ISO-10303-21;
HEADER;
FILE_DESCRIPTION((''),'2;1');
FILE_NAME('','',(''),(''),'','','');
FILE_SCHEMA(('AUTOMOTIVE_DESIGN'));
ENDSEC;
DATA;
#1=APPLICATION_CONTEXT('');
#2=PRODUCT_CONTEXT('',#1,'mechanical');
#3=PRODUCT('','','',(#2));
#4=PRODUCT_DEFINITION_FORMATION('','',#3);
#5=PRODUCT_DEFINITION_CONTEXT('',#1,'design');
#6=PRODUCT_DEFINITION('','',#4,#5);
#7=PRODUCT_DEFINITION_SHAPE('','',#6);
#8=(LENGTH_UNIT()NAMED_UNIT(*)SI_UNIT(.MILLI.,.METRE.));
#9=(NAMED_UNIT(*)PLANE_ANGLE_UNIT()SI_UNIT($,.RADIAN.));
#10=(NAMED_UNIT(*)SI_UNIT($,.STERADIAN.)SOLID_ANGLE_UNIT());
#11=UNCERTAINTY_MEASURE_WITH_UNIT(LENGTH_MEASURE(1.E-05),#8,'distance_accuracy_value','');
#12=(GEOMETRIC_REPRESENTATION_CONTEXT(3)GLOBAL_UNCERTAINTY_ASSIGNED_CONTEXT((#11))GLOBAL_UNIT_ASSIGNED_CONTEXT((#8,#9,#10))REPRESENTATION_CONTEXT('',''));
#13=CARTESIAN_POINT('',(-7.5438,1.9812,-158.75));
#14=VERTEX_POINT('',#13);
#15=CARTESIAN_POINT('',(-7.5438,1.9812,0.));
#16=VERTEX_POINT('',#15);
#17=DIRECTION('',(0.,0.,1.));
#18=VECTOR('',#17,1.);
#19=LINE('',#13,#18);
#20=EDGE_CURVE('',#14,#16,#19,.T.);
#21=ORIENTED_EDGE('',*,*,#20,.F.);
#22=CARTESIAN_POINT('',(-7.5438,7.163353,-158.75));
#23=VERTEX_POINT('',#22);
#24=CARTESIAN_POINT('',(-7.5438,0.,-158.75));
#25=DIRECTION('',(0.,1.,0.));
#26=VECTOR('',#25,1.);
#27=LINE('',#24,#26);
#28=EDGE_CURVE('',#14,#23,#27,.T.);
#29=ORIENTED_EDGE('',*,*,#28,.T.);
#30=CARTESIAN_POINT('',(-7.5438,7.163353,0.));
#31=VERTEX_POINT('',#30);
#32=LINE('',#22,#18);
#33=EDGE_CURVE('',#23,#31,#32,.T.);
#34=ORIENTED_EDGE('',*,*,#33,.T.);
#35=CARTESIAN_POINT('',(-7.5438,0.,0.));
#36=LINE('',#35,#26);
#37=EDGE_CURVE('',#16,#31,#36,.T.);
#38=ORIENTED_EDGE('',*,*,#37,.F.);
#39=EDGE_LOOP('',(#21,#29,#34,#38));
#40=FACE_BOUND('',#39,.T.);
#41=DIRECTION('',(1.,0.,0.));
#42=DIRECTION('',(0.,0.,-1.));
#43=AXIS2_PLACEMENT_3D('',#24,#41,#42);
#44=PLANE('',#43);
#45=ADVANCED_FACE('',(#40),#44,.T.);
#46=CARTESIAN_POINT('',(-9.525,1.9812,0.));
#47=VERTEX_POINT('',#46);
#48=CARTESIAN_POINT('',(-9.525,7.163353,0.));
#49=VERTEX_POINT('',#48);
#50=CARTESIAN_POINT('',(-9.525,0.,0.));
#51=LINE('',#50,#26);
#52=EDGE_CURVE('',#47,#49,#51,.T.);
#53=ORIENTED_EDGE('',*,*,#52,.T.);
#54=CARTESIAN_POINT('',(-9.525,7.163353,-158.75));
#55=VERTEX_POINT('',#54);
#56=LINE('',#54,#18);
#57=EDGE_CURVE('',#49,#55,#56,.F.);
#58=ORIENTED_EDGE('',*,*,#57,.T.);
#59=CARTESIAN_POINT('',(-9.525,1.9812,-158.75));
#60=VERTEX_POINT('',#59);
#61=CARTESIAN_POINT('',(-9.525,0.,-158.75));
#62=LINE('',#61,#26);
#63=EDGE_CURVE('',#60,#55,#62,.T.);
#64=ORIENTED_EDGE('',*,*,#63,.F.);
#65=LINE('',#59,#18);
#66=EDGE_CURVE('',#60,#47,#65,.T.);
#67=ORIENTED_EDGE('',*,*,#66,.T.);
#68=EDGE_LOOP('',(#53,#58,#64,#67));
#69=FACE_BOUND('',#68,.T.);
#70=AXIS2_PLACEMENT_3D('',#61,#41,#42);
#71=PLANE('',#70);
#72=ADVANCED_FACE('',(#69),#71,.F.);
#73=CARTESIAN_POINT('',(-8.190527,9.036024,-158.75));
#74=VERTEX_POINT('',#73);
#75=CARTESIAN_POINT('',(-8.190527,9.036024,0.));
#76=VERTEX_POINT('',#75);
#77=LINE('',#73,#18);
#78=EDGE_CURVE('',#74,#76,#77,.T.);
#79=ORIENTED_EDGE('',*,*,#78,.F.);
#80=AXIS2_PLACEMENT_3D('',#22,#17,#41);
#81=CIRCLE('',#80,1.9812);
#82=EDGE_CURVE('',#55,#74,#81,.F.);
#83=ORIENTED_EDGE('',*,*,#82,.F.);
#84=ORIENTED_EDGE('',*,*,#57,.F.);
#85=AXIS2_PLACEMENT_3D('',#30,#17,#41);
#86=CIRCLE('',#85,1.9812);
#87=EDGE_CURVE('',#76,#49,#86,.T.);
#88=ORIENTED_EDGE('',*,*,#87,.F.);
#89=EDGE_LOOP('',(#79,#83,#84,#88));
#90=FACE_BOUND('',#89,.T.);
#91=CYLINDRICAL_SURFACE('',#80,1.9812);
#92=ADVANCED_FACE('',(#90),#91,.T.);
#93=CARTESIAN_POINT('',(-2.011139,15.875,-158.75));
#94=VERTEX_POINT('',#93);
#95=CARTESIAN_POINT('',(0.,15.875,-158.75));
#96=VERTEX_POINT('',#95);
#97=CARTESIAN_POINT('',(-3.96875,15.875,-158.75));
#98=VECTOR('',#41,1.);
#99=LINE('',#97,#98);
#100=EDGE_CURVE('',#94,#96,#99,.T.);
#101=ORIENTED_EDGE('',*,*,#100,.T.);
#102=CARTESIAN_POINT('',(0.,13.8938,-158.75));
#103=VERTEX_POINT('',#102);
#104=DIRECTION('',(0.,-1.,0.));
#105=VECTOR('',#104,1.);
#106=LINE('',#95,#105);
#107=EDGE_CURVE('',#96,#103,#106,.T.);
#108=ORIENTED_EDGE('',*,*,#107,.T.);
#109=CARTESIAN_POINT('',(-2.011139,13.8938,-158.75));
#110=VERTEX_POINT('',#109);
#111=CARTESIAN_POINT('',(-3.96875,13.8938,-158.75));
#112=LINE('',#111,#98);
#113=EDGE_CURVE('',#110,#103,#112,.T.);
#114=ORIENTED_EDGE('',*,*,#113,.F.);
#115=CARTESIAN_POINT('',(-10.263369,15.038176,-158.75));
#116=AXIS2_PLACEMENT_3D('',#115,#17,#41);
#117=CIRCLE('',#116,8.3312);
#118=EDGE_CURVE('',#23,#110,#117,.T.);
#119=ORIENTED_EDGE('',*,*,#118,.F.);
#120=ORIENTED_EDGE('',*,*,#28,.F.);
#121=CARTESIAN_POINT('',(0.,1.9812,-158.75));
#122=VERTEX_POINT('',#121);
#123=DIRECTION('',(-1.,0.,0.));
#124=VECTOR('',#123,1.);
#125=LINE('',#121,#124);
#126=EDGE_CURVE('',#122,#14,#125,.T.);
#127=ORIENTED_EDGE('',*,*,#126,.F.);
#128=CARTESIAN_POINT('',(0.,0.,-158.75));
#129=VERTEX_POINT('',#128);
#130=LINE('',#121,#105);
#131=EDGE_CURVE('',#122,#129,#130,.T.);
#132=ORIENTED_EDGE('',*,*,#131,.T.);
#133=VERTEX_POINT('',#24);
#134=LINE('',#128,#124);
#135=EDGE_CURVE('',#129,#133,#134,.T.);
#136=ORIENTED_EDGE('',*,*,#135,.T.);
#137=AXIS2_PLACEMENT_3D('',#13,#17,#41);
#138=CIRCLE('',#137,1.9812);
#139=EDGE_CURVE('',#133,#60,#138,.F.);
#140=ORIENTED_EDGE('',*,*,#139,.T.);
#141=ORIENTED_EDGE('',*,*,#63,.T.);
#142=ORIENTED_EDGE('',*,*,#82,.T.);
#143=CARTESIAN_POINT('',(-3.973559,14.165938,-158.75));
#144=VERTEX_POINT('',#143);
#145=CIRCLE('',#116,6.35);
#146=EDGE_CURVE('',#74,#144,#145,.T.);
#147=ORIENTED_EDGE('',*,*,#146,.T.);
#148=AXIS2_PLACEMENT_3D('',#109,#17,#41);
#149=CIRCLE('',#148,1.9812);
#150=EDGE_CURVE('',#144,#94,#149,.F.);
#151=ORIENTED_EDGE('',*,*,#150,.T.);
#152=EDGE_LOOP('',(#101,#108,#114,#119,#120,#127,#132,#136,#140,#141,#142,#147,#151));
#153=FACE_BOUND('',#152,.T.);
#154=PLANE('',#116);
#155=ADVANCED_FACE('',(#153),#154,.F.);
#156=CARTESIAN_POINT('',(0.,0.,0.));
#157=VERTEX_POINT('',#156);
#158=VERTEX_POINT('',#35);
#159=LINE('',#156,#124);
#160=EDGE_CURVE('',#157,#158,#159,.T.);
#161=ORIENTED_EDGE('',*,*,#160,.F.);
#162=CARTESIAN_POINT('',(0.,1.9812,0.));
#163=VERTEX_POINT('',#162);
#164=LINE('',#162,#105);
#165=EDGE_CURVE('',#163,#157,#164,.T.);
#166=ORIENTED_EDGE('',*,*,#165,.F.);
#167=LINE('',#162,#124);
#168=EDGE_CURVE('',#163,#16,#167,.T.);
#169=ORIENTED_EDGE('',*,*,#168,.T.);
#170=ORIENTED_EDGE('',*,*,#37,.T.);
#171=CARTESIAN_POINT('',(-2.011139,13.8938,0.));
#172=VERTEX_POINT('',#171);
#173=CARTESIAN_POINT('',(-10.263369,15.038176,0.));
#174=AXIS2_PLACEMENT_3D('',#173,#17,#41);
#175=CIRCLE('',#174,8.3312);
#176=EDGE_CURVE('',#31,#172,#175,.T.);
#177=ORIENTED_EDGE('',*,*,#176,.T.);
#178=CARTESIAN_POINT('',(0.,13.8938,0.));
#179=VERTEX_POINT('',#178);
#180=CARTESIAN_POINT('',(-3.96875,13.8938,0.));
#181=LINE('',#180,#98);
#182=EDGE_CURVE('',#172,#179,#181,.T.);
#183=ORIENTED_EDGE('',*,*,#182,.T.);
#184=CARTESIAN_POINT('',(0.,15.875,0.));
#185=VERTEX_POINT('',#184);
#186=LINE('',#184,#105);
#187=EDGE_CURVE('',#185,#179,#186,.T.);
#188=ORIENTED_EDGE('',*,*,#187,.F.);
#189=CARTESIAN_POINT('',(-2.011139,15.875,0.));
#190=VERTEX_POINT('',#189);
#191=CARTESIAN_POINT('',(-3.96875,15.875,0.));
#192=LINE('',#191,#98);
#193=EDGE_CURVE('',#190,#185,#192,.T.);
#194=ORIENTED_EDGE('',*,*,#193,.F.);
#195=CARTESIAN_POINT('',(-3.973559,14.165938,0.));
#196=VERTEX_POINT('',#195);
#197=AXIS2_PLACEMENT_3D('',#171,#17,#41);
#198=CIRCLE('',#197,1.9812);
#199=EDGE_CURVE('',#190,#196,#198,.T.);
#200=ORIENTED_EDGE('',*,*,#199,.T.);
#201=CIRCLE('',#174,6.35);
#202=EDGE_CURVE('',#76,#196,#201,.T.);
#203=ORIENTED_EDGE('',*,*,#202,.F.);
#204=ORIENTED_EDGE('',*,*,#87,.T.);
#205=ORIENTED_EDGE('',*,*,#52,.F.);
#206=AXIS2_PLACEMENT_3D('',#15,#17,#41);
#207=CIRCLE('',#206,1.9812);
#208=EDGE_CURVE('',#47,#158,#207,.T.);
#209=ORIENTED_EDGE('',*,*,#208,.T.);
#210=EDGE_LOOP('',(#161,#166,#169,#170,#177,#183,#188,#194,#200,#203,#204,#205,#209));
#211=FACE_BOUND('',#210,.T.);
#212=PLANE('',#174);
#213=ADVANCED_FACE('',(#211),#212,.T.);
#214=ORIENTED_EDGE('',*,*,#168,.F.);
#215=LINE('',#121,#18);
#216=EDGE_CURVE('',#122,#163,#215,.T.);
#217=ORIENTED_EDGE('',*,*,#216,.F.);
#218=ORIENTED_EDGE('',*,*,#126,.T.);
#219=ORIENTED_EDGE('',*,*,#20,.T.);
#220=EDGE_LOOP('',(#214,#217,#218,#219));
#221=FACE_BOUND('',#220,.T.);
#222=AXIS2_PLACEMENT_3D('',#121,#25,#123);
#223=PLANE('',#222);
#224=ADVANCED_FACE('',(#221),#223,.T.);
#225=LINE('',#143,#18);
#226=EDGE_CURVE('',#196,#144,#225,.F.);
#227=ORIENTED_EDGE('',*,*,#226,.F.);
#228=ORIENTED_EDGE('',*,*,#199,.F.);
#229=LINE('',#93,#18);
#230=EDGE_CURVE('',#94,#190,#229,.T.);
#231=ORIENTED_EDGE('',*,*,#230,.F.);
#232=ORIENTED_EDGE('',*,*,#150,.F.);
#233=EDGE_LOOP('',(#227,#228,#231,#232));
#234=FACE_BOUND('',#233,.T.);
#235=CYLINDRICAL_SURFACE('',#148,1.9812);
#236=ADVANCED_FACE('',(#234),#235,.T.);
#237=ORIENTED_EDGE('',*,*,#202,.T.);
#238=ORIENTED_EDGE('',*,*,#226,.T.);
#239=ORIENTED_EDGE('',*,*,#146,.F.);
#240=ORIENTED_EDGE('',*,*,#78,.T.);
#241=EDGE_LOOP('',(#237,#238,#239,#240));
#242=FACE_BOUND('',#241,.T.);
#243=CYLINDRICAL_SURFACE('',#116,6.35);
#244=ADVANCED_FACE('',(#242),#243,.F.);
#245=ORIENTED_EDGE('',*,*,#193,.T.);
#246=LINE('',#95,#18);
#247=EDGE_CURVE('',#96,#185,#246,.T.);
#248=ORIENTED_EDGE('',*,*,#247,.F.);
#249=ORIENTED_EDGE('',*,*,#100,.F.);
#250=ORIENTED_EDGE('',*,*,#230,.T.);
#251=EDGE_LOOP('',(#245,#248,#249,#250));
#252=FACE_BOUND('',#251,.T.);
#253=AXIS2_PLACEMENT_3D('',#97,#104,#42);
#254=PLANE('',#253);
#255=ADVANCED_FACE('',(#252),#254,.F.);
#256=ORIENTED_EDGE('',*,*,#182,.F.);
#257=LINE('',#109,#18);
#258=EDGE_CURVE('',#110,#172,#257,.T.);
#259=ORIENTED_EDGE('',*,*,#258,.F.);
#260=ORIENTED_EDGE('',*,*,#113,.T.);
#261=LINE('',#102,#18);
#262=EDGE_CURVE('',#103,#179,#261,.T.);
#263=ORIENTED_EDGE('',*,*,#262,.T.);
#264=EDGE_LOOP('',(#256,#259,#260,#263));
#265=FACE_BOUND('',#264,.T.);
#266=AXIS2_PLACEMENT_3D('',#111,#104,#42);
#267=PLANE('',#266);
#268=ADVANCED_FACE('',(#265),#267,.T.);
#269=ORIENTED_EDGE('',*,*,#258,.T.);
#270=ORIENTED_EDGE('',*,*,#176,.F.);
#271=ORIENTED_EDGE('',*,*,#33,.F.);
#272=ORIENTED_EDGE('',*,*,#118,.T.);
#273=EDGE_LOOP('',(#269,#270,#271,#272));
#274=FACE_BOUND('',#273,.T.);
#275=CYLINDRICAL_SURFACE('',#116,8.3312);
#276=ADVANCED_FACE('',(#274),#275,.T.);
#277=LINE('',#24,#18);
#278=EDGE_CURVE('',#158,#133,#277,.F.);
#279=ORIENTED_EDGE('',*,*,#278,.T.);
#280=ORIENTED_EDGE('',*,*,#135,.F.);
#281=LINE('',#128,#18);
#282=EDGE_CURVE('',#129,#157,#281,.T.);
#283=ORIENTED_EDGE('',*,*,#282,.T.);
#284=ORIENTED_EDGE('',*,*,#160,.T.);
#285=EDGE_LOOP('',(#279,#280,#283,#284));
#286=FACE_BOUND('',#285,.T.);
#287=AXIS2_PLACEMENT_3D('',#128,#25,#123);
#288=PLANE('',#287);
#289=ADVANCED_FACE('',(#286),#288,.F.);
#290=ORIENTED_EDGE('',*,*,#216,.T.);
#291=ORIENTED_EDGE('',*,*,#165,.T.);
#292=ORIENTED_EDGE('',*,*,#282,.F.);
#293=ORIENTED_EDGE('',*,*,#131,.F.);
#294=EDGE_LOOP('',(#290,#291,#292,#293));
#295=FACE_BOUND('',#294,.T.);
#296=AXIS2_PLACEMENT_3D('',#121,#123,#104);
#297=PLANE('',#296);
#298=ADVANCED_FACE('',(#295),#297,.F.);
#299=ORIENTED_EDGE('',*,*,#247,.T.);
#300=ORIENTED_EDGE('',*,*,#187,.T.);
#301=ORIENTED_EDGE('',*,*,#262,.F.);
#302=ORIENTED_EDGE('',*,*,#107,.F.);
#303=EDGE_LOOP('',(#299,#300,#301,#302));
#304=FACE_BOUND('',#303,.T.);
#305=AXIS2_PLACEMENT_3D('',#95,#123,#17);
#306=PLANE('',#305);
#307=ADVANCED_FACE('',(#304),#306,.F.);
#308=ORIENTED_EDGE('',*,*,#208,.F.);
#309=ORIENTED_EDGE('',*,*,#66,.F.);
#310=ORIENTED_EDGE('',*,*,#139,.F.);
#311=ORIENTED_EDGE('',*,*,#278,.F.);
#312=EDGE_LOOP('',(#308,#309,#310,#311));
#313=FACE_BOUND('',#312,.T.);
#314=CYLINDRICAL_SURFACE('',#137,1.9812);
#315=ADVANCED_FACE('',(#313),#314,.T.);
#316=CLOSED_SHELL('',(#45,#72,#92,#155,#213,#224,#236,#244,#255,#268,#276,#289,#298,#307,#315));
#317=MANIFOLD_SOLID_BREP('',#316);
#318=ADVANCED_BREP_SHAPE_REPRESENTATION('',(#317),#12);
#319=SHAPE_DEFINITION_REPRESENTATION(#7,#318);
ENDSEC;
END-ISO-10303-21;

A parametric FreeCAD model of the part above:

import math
import FreeCAD as App
import Part
import Sketcher

V = App.Vector
Q = App.Units.Quantity


def edges_at(feature, points):
    """Names of the edges that pass closest to the given points."""
    edges = feature.Shape.Edges
    near = lambda p: min(range(len(edges)), key=lambda i: edges[i].distToShape(Part.Vertex(*p))[0])
    return sorted({f"Edge{near(p) + 1}" for p in points})

doc = App.newDocument("Part")
params = doc.addObject("Spreadsheet::Sheet", "Params")
for row, (alias, value) in enumerate([
    ("sketch1_radius", "0.25 in"),
    ("sketch1_radius2", "0.328 in"),
    ("sketch1_width", "0.375 in"),
    ("sketch1_width2", "0.297 in"),
    ("sketch1_width3", "0.15625 in"),
    ("pad1_length", "6.25 in"),
    ("fillet_radius", "0.078 in"),
], start=1):
    params.set(f"A{row}", alias)
    params.set(f"B{row}", "=" + value)
    params.setAlias(f"B{row}", alias)

body = doc.addObject("PartDesign::Body", "Body")

sketch1 = doc.addObject("Sketcher::SketchObject", "Sketch")
body.addObject(sketch1)
sketch1.AttachmentSupport = (doc.XY_Plane, [""])
sketch1.MapMode = "FlatFace"
sketch1.addGeometry([
    Part.LineSegment(V(-9.5, 0, 0), V(0, 0, 0)),
    Part.LineSegment(V(0, 0, 0), V(0, 2, 0)),
    Part.LineSegment(V(0, 2, 0), V(-7.5, 2, 0)),
    Part.LineSegment(V(-7.5, 2, 0), V(-7.5, 7.2, 0)),
    Part.ArcOfCircle(Part.Circle(V(-10.3, 15, 0), V(0, 0, 1), 8.3), math.radians(-71), math.radians(-8)),
    Part.LineSegment(V(-2, 13.9, 0), V(0, 13.9, 0)),
    Part.LineSegment(V(0, 13.9, 0), V(0, 15.9, 0)),
    Part.LineSegment(V(0, 15.9, 0), V(-4, 15.9, 0)),
    Part.ArcOfCircle(Part.Circle(V(-10.3, 15, 0), V(0, 0, 1), 6.3), math.radians(-83), math.radians(8)),
    Part.LineSegment(V(-9.5, 8.7, 0), V(-9.5, 0, 0)),
], False)
sketch1.addConstraint([
    Sketcher.Constraint("Coincident", 0, 2, 1, 1),
    Sketcher.Constraint("Coincident", 1, 2, 2, 1),
    Sketcher.Constraint("Coincident", 2, 2, 3, 1),
    Sketcher.Constraint("Coincident", 3, 2, 4, 1),
    Sketcher.Constraint("Coincident", 4, 2, 5, 1),
    Sketcher.Constraint("Coincident", 5, 2, 6, 1),
    Sketcher.Constraint("Coincident", 6, 2, 7, 1),
    Sketcher.Constraint("Coincident", 7, 2, 8, 2),
    Sketcher.Constraint("Coincident", 8, 1, 9, 1),
    Sketcher.Constraint("Coincident", 9, 2, 0, 1),
    Sketcher.Constraint("Horizontal", 0),
    Sketcher.Constraint("Vertical", 1),
    Sketcher.Constraint("Horizontal", 2),
    Sketcher.Constraint("Vertical", 3),
    Sketcher.Constraint("Horizontal", 5),
    Sketcher.Constraint("Vertical", 6),
    Sketcher.Constraint("Horizontal", 7),
    Sketcher.Constraint("Vertical", 9),
    Sketcher.Constraint("Coincident", 0, 2, -1, 1),
    Sketcher.Constraint("Coincident", 8, 3, 4, 3),
    Sketcher.Constraint("PointOnObject", 5, 2, -2),
    Sketcher.Constraint("Equal", 1, 6),
    Sketcher.Constraint("Radius", 8, Q("0.25 in")),
    Sketcher.Constraint("Radius", 4, Q("0.328 in")),
    Sketcher.Constraint("DistanceX", 0, 1, 0, 2, Q("0.375 in")),
    Sketcher.Constraint("DistanceX", 2, 2, 2, 1, Q("0.297 in")),
    Sketcher.Constraint("DistanceX", 7, 2, 7, 1, Q("0.15625 in")),
    Sketcher.Constraint("DistanceY", 1, 1, 1, 2, Q("0.078 in")),
    Sketcher.Constraint("DistanceY", 9, 2, 9, 1, Q("0.34375 in")),
    Sketcher.Constraint("DistanceY", -1, 1, 4, 2, Q("0.547 in")),
])
sketch1.setExpression("Constraints[22]", "Params.sketch1_radius")
sketch1.setExpression("Constraints[23]", "Params.sketch1_radius2")
sketch1.setExpression("Constraints[24]", "Params.sketch1_width")
sketch1.setExpression("Constraints[25]", "Params.sketch1_width2")
sketch1.setExpression("Constraints[26]", "Params.sketch1_width3")
pad1 = doc.addObject("PartDesign::Pad", "Pad")
body.addObject(pad1)
pad1.Profile = sketch1
pad1.setExpression("Length", "Params.pad1_length")
pad1.Reversed = True
doc.recompute()

fillet = doc.addObject("PartDesign::Fillet", "Fillet")
body.addObject(fillet)
fillet.Base = (pad1, edges_at(pad1, [(-9.525, 0, -79.375), (-9.525, 8.731, -79.375), (-3.969, 15.875, -79.375)]))
fillet.setExpression("Radius", "Params.fillet_radius")

doc.recompute()
